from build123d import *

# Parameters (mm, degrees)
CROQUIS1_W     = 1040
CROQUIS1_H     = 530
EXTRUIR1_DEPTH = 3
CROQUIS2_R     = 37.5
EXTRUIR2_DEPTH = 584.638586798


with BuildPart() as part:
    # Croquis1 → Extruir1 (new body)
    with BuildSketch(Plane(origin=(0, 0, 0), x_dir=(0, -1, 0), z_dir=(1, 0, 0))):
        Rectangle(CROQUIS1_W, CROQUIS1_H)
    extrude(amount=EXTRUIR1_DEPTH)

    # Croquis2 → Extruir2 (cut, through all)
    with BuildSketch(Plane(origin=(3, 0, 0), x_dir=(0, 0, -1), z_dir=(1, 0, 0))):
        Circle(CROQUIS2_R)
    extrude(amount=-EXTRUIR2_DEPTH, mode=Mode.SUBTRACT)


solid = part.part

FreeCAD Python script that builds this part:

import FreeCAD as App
import Part
import Sketcher
Q = App.Units.Quantity


def add_polygon(sketch, points):
    """Adds a closed chain of lines whose ends are joined by coincident constraints."""
    first, n = sketch.GeometryCount, len(points)
    for a, b in zip(points, points[1:] + points[:1]):
        sketch.addGeometry(Part.LineSegment(App.Vector(*a, 0), App.Vector(*b, 0)), False)
    for i in range(n):
        sketch.addConstraint(Sketcher.Constraint("Coincident", first + i, 2, first + (i + 1) % n, 1))

doc = App.newDocument("Part")
body = doc.addObject("PartDesign::Body", "Body")

# Sketch on YZ plane
sketch1 = body.newObject("Sketcher::SketchObject", "Sketch")
sketch1.AttachmentSupport = (doc.getObject("YZ_Plane"), [""])
sketch1.MapMode = "FlatFace"
add_polygon(sketch1, [(520, -265), (520, 265), (-520, 265), (-520, -265)])  # lines 0-3
sketch1.addConstraint([
    Sketcher.Constraint("Vertical", 0),
    Sketcher.Constraint("Horizontal", 1),
    Sketcher.Constraint("Vertical", 2),
    Sketcher.Constraint("Horizontal", 3),
    Sketcher.Constraint("Symmetric", 0, 2, 2, 2, -1, 1),
    Sketcher.Constraint("DistanceX", 1, 2, 1, 1, Q("1040 mm")),
    Sketcher.Constraint("DistanceY", 0, 1, 0, 2, Q("530 mm")),
])
pad1 = body.newObject("PartDesign::Pad", "Pad")
pad1.Profile = sketch1
pad1.Length = 3

# Sketch on YZ plane
sketch2 = body.newObject("Sketcher::SketchObject", "Sketch001")
sketch2.AttachmentSupport = (doc.getObject("YZ_Plane"), [""])
sketch2.MapMode = "FlatFace"
sketch2.AttachmentOffset = App.Placement(App.Vector(0, 0, 3), App.Rotation())
sketch2.addGeometry(Part.Circle(App.Vector(0, 0, 0), App.Vector(0, 0, 1), 37.5), False)
sketch2.addConstraint([
    Sketcher.Constraint("Coincident", 0, 3, -1, 1),
    Sketcher.Constraint("Diameter", 0, Q("75 mm")),
])
pocket1 = body.newObject("PartDesign::Pocket", "Pocket")
pocket1.Profile = sketch2
pocket1.Type = "ThroughAll"

doc.recompute()
